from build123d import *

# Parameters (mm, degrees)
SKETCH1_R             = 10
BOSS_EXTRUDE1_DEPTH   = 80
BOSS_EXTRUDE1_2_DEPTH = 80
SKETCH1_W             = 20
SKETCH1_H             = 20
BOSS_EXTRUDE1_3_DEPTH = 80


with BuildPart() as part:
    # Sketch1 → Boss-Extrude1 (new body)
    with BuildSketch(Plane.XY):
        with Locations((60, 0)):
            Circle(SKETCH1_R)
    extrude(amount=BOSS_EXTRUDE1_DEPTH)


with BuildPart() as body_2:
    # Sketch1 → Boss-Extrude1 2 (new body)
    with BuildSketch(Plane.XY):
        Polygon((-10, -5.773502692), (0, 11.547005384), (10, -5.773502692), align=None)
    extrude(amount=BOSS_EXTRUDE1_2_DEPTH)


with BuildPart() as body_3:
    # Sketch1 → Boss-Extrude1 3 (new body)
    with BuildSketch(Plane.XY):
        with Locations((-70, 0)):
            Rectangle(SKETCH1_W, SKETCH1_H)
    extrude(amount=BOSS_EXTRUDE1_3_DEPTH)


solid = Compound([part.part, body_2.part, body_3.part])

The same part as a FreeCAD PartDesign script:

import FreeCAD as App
import Part
import Sketcher
from FreeCAD import Vector
Q = App.Units.Quantity

doc = App.newDocument("Part")
body = doc.addObject("PartDesign::Body", "Body")

# Sketch on XY plane
sketch1 = body.newObject("Sketcher::SketchObject", "Sketch")
sketch1.AttachmentSupport = (doc.getObject("XY_Plane"), [""])
sketch1.MapMode = "FlatFace"
sketch1.addGeometry(Part.Circle(Vector(60, 0, 0), Vector(0, 0, 1), 10), False)
sketch1.addConstraint(Sketcher.Constraint("PointOnObject", 0, 3, -1))
sketch1.addConstraint(Sketcher.Constraint("Diameter", 0, 20.0))
sketch1.addConstraint(Sketcher.Constraint("DistanceX", -1, 1, 0, 3, 60.0))
pad1 = body.newObject("PartDesign::Pad", "Pad")
pad1.Profile = sketch1
pad1.Length = 80
body2 = doc.addObject("PartDesign::Body", "Body001")

# Sketch on XY plane
sketch2 = body2.newObject("Sketcher::SketchObject", "Sketch001")
sketch2.AttachmentSupport = (doc.getObject("XY_Plane001"), [""])
sketch2.MapMode = "FlatFace"
sketch2.addGeometry(Part.LineSegment(Vector(0, 12, 0), Vector(-10, -6, 0)), False)
sketch2.addGeometry(Part.LineSegment(Vector(-10, -6, 0), Vector(10, -6, 0)), False)
sketch2.addGeometry(Part.LineSegment(Vector(10, -6, 0), Vector(0, 12, 0)), False)
sketch2.addConstraint(Sketcher.Constraint("Coincident", 0, 2, 1, 1))
sketch2.addConstraint(Sketcher.Constraint("Coincident", 1, 2, 2, 1))
sketch2.addConstraint(Sketcher.Constraint("Coincident", 2, 2, 0, 1))
sketch2.addConstraint(Sketcher.Constraint("Horizontal", 1))
sketch2.addConstraint(Sketcher.Constraint("PointOnObject", 2, 2, -2))
sketch2.addConstraint(Sketcher.Constraint("Equal", 0, 2))
sketch2.addConstraint(Sketcher.Constraint("DistanceX", 1, 1, 1, 2, 20.0))
sketch2.addConstraint(Sketcher.Constraint("Angle", 0, Q("-120 deg")))
sketch2.addConstraint(Sketcher.Constraint("DistanceY", 0, 2, -1, 1, 5.773503))
pad2 = body2.newObject("PartDesign::Pad", "Pad001")
pad2.Profile = sketch2
pad2.Length = 80
body3 = doc.addObject("PartDesign::Body", "Body002")

# Sketch on XY plane
sketch3 = body3.newObject("Sketcher::SketchObject", "Sketch002")
sketch3.AttachmentSupport = (doc.getObject("XY_Plane002"), [""])
sketch3.MapMode = "FlatFace"
sketch3.addGeometry(Part.LineSegment(Vector(-80, 10, 0), Vector(-80, -10, 0)), False)
sketch3.addGeometry(Part.LineSegment(Vector(-80, -10, 0), Vector(-60, -10, 0)), False)
sketch3.addGeometry(Part.LineSegment(Vector(-60, -10, 0), Vector(-60, 10, 0)), False)
sketch3.addGeometry(Part.LineSegment(Vector(-60, 10, 0), Vector(-80, 10, 0)), False)
sketch3.addConstraint(Sketcher.Constraint("Coincident", 0, 2, 1, 1))
sketch3.addConstraint(Sketcher.Constraint("Coincident", 1, 2, 2, 1))
sketch3.addConstraint(Sketcher.Constraint("Coincident", 2, 2, 3, 1))
sketch3.addConstraint(Sketcher.Constraint("Coincident", 3, 2, 0, 1))
sketch3.addConstraint(Sketcher.Constraint("Vertical", 0))
sketch3.addConstraint(Sketcher.Constraint("Horizontal", 1))
sketch3.addConstraint(Sketcher.Constraint("Vertical", 2))
sketch3.addConstraint(Sketcher.Constraint("Horizontal", 3))
sketch3.addConstraint(Sketcher.Constraint("Equal", 3, 0))
sketch3.addConstraint(Sketcher.Constraint("DistanceX", 1, 1, 1, 2, 20.0))
sketch3.addConstraint(Sketcher.Constraint("DistanceX", 0, 2, -1, 1, 80.0))
sketch3.addConstraint(Sketcher.Constraint("DistanceY", 0, 2, -1, 1, 10.0))
pad3 = body3.newObject("PartDesign::Pad", "Pad002")
pad3.Profile = sketch3
pad3.Length = 80

doc.recompute()
